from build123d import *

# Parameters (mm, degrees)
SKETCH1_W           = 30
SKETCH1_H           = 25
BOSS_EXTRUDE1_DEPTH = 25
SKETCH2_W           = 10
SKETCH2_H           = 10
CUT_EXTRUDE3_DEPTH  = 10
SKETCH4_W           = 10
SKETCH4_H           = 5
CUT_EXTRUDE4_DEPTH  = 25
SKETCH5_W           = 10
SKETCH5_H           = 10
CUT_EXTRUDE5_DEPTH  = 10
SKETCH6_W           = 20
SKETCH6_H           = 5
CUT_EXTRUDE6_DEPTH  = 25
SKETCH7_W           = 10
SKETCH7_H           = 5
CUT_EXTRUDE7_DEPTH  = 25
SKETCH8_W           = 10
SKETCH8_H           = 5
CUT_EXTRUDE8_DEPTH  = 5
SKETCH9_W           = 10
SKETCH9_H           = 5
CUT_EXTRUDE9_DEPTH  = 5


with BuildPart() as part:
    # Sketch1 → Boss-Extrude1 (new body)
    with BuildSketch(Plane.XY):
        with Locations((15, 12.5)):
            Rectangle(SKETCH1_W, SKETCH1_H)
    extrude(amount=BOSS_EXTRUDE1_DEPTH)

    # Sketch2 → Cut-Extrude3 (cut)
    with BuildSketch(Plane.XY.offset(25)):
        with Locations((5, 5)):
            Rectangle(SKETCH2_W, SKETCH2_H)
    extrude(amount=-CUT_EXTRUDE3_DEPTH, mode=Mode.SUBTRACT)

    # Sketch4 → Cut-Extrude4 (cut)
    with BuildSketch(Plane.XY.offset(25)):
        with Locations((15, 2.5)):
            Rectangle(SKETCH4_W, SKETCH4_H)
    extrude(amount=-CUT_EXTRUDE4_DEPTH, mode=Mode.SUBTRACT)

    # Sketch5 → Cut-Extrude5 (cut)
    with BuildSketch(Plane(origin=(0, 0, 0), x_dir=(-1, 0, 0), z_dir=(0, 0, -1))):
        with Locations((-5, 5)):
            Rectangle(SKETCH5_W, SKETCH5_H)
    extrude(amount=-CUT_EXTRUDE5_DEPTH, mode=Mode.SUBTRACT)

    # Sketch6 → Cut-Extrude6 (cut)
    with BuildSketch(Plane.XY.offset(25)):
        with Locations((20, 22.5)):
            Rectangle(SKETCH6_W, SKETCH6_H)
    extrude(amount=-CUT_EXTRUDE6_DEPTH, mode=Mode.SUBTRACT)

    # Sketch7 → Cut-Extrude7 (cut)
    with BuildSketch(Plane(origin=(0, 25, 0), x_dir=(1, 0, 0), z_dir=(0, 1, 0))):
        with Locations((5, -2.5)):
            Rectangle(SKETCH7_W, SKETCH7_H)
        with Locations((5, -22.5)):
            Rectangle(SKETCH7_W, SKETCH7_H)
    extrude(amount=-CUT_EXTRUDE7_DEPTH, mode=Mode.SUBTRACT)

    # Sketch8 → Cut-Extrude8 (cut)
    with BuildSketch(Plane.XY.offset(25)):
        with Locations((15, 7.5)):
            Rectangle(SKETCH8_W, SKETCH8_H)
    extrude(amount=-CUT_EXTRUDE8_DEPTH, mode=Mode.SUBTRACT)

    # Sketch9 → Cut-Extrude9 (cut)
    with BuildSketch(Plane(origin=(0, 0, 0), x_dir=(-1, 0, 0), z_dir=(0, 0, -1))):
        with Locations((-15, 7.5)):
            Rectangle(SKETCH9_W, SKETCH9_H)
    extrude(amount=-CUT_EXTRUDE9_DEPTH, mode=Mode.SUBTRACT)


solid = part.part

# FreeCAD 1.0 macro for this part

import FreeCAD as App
import Part
import Sketcher

V = App.Vector
Q = App.Units.Quantity

doc = App.newDocument("Part")
params = doc.addObject("Spreadsheet::Sheet", "Params")
for row, (alias, value) in enumerate([
    ("sketch1_width", "30 mm"),
    ("sketch1_height", "25 mm"),
    ("pad1_length", "25 mm"),
    ("sketch2_width", "10 mm"),
    ("pocket1_length", "10 mm"),
    ("sketch3_width", "10 mm"),
    ("sketch3_height", "5 mm"),
    ("pocket2_length", "25 mm"),
    ("sketch4_width", "10 mm"),
    ("pocket3_length", "10 mm"),
    ("sketch5_width", "20 mm"),
    ("sketch5_height", "5 mm"),
    ("pocket4_length", "25 mm"),
    ("sketch6_width", "10 mm"),
    ("sketch6_height", "5 mm"),
    ("pocket5_length", "25 mm"),
    ("sketch7_width", "10 mm"),
    ("sketch7_height", "5 mm"),
    ("pocket6_length", "5 mm"),
    ("sketch8_width", "10 mm"),
    ("sketch8_height", "5 mm"),
    ("pocket7_length", "5 mm"),
], start=1):
    params.set(f"A{row}", alias)
    params.set(f"B{row}", "=" + value)
    params.setAlias(f"B{row}", alias)

body = doc.addObject("PartDesign::Body", "Body")

sketch1 = doc.addObject("Sketcher::SketchObject", "Sketch")
body.addObject(sketch1)
sketch1.AttachmentSupport = (doc.XY_Plane, [""])
sketch1.MapMode = "FlatFace"
sketch1.addGeometry([
    Part.LineSegment(V(0, 25, 0), V(0, 0, 0)),
    Part.LineSegment(V(0, 0, 0), V(30, 0, 0)),
    Part.LineSegment(V(30, 0, 0), V(30, 25, 0)),
    Part.LineSegment(V(30, 25, 0), V(0, 25, 0)),
], False)
sketch1.addConstraint([
    Sketcher.Constraint("Coincident", 0, 2, 1, 1),
    Sketcher.Constraint("Coincident", 1, 2, 2, 1),
    Sketcher.Constraint("Coincident", 2, 2, 3, 1),
    Sketcher.Constraint("Coincident", 3, 2, 0, 1),
    Sketcher.Constraint("Vertical", 0),
    Sketcher.Constraint("Horizontal", 1),
    Sketcher.Constraint("Vertical", 2),
    Sketcher.Constraint("Horizontal", 3),
    Sketcher.Constraint("Coincident", 0, 2, -1, 1),
    Sketcher.Constraint("DistanceX", 1, 1, 1, 2, Q("30 mm")),
    Sketcher.Constraint("DistanceY", 0, 2, 0, 1, Q("25 mm")),
])
sketch1.setExpression("Constraints[9]", "Params.sketch1_width")
sketch1.setExpression("Constraints[10]", "Params.sketch1_height")
pad1 = doc.addObject("PartDesign::Pad", "Pad")
body.addObject(pad1)
pad1.Profile = sketch1
pad1.setExpression("Length", "Params.pad1_length")

sketch2 = doc.addObject("Sketcher::SketchObject", "Sketch001")
body.addObject(sketch2)
sketch2.AttachmentSupport = (doc.XY_Plane, [""])
sketch2.MapMode = "FlatFace"
sketch2.AttachmentOffset = App.Placement(V(0, 0, 25), App.Rotation())
sketch2.addGeometry([
    Part.LineSegment(V(0, 10, 0), V(0, 0, 0)),
    Part.LineSegment(V(0, 0, 0), V(10, 0, 0)),
    Part.LineSegment(V(10, 0, 0), V(10, 10, 0)),
    Part.LineSegment(V(10, 10, 0), V(0, 10, 0)),
], False)
sketch2.addConstraint([
    Sketcher.Constraint("Coincident", 0, 2, 1, 1),
    Sketcher.Constraint("Coincident", 1, 2, 2, 1),
    Sketcher.Constraint("Coincident", 2, 2, 3, 1),
    Sketcher.Constraint("Coincident", 3, 2, 0, 1),
    Sketcher.Constraint("Vertical", 0),
    Sketcher.Constraint("Horizontal", 1),
    Sketcher.Constraint("Vertical", 2),
    Sketcher.Constraint("Horizontal", 3),
    Sketcher.Constraint("Coincident", 0, 2, -1, 1),
    Sketcher.Constraint("Equal", 3, 0),
    Sketcher.Constraint("DistanceX", 1, 1, 1, 2, Q("10 mm")),
])
sketch2.setExpression("Constraints[10]", "Params.sketch2_width")
pocket1 = doc.addObject("PartDesign::Pocket", "Pocket")
body.addObject(pocket1)
pocket1.Profile = sketch2
pocket1.setExpression("Length", "Params.pocket1_length")

sketch3 = doc.addObject("Sketcher::SketchObject", "Sketch002")
body.addObject(sketch3)
sketch3.AttachmentSupport = (doc.XY_Plane, [""])
sketch3.MapMode = "FlatFace"
sketch3.AttachmentOffset = App.Placement(V(0, 0, 25), App.Rotation())
sketch3.addGeometry([
    Part.LineSegment(V(10, 5, 0), V(10, 0, 0)),
    Part.LineSegment(V(10, 0, 0), V(20, 0, 0)),
    Part.LineSegment(V(20, 0, 0), V(20, 5, 0)),
    Part.LineSegment(V(20, 5, 0), V(10, 5, 0)),
], False)
sketch3.addConstraint([
    Sketcher.Constraint("Coincident", 0, 2, 1, 1),
    Sketcher.Constraint("Coincident", 1, 2, 2, 1),
    Sketcher.Constraint("Coincident", 2, 2, 3, 1),
    Sketcher.Constraint("Coincident", 3, 2, 0, 1),
    Sketcher.Constraint("Vertical", 0),
    Sketcher.Constraint("Horizontal", 1),
    Sketcher.Constraint("Vertical", 2),
    Sketcher.Constraint("Horizontal", 3),
    Sketcher.Constraint("PointOnObject", 0, 2, -1),
    Sketcher.Constraint("DistanceX", 1, 1, 1, 2, Q("10 mm")),
    Sketcher.Constraint("DistanceY", 0, 2, 0, 1, Q("5 mm")),
    Sketcher.Constraint("DistanceX", -1, 1, 0, 2, Q("10 mm")),
])
sketch3.setExpression("Constraints[9]", "Params.sketch3_width")
sketch3.setExpression("Constraints[10]", "Params.sketch3_height")
pocket2 = doc.addObject("PartDesign::Pocket", "Pocket001")
body.addObject(pocket2)
pocket2.Profile = sketch3
pocket2.setExpression("Length", "Params.pocket2_length")

sketch4 = doc.addObject("Sketcher::SketchObject", "Sketch003")
body.addObject(sketch4)
sketch4.AttachmentSupport = (doc.XY_Plane, [""])
sketch4.MapMode = "FlatFace"
sketch4.addGeometry([
    Part.LineSegment(V(10, 10, 0), V(10, 0, 0)),
    Part.LineSegment(V(10, 0, 0), V(0, 0, 0)),
    Part.LineSegment(V(0, 0, 0), V(0, 10, 0)),
    Part.LineSegment(V(0, 10, 0), V(10, 10, 0)),
], False)
sketch4.addConstraint([
    Sketcher.Constraint("Coincident", 0, 2, 1, 1),
    Sketcher.Constraint("Coincident", 1, 2, 2, 1),
    Sketcher.Constraint("Coincident", 2, 2, 3, 1),
    Sketcher.Constraint("Coincident", 3, 2, 0, 1),
    Sketcher.Constraint("Vertical", 0),
    Sketcher.Constraint("Horizontal", 1),
    Sketcher.Constraint("Vertical", 2),
    Sketcher.Constraint("Horizontal", 3),
    Sketcher.Constraint("Coincident", 1, 2, -1, 1),
    Sketcher.Constraint("Equal", 3, 0),
    Sketcher.Constraint("DistanceX", 1, 2, 1, 1, Q("10 mm")),
])
sketch4.setExpression("Constraints[10]", "Params.sketch4_width")
pocket3 = doc.addObject("PartDesign::Pocket", "Pocket002")
body.addObject(pocket3)
pocket3.Profile = sketch4
pocket3.setExpression("Length", "Params.pocket3_length")
pocket3.Reversed = True

sketch5 = doc.addObject("Sketcher::SketchObject", "Sketch004")
body.addObject(sketch5)
sketch5.AttachmentSupport = (doc.XY_Plane, [""])
sketch5.MapMode = "FlatFace"
sketch5.AttachmentOffset = App.Placement(V(0, 0, 25), App.Rotation())
sketch5.addGeometry([
    Part.LineSegment(V(10, 25, 0), V(10, 20, 0)),
    Part.LineSegment(V(10, 20, 0), V(30, 20, 0)),
    Part.LineSegment(V(30, 20, 0), V(30, 25, 0)),
    Part.LineSegment(V(30, 25, 0), V(10, 25, 0)),
], False)
sketch5.addConstraint([
    Sketcher.Constraint("Coincident", 0, 2, 1, 1),
    Sketcher.Constraint("Coincident", 1, 2, 2, 1),
    Sketcher.Constraint("Coincident", 2, 2, 3, 1),
    Sketcher.Constraint("Coincident", 3, 2, 0, 1),
    Sketcher.Constraint("Vertical", 0),
    Sketcher.Constraint("Horizontal", 1),
    Sketcher.Constraint("Vertical", 2),
    Sketcher.Constraint("Horizontal", 3),
    Sketcher.Constraint("DistanceX", 1, 1, 1, 2, Q("20 mm")),
    Sketcher.Constraint("DistanceY", 0, 2, 0, 1, Q("5 mm")),
    Sketcher.Constraint("DistanceX", -1, 1, 0, 2, Q("10 mm")),
    Sketcher.Constraint("DistanceY", -1, 1, 0, 2, Q("20 mm")),
])
sketch5.setExpression("Constraints[8]", "Params.sketch5_width")
sketch5.setExpression("Constraints[9]", "Params.sketch5_height")
pocket4 = doc.addObject("PartDesign::Pocket", "Pocket003")
body.addObject(pocket4)
pocket4.Profile = sketch5
pocket4.setExpression("Length", "Params.pocket4_length")

sketch6 = doc.addObject("Sketcher::SketchObject", "Sketch005")
body.addObject(sketch6)
sketch6.AttachmentSupport = (doc.XZ_Plane, [""])
sketch6.MapMode = "FlatFace"
sketch6.AttachmentOffset = App.Placement(V(0, 0, -25), App.Rotation())
sketch6.addGeometry([
    Part.LineSegment(V(0, 0, 0), V(0, 5, 0)),
    Part.LineSegment(V(0, 5, 0), V(10, 5, 0)),
    Part.LineSegment(V(10, 5, 0), V(10, 0, 0)),
    Part.LineSegment(V(10, 0, 0), V(0, 0, 0)),
    Part.LineSegment(V(0, 20, 0), V(0, 25, 0)),
    Part.LineSegment(V(0, 25, 0), V(10, 25, 0)),
    Part.LineSegment(V(10, 25, 0), V(10, 20, 0)),
    Part.LineSegment(V(10, 20, 0), V(0, 20, 0)),
], False)
sketch6.addConstraint([
    Sketcher.Constraint("Coincident", 0, 2, 1, 1),
    Sketcher.Constraint("Coincident", 1, 2, 2, 1),
    Sketcher.Constraint("Coincident", 2, 2, 3, 1),
    Sketcher.Constraint("Coincident", 3, 2, 0, 1),
    Sketcher.Constraint("Coincident", 4, 2, 5, 1),
    Sketcher.Constraint("Coincident", 5, 2, 6, 1),
    Sketcher.Constraint("Coincident", 6, 2, 7, 1),
    Sketcher.Constraint("Coincident", 7, 2, 4, 1),
    Sketcher.Constraint("Vertical", 0),
    Sketcher.Constraint("Horizontal", 1),
    Sketcher.Constraint("Vertical", 2),
    Sketcher.Constraint("Horizontal", 3),
    Sketcher.Constraint("Vertical", 4),
    Sketcher.Constraint("Horizontal", 5),
    Sketcher.Constraint("Vertical", 6),
    Sketcher.Constraint("Horizontal", 7),
    Sketcher.Constraint("Coincident", 3, 2, -1, 1),
    Sketcher.Constraint("PointOnObject", 4, 2, -2),
    Sketcher.Constraint("Vertical", 2, 2, 5, 2),
    Sketcher.Constraint("Equal", 2, 4),
    Sketcher.Constraint("DistanceX", 1, 1, 1, 2, Q("10 mm")),
    Sketcher.Constraint("DistanceY", 0, 1, 0, 2, Q("5 mm")),
    Sketcher.Constraint("DistanceY", -1, 1, 4, 2, Q("25 mm")),
])
sketch6.setExpression("Constraints[20]", "Params.sketch6_width")
sketch6.setExpression("Constraints[21]", "Params.sketch6_height")
pocket5 = doc.addObject("PartDesign::Pocket", "Pocket004")
body.addObject(pocket5)
pocket5.Profile = sketch6
pocket5.setExpression("Length", "Params.pocket5_length")
pocket5.Reversed = True

sketch7 = doc.addObject("Sketcher::SketchObject", "Sketch006")
body.addObject(sketch7)
sketch7.AttachmentSupport = (doc.XY_Plane, [""])
sketch7.MapMode = "FlatFace"
sketch7.AttachmentOffset = App.Placement(V(0, 0, 25), App.Rotation())
sketch7.addGeometry([
    Part.LineSegment(V(10, 10, 0), V(10, 5, 0)),
    Part.LineSegment(V(10, 5, 0), V(20, 5, 0)),
    Part.LineSegment(V(20, 5, 0), V(20, 10, 0)),
    Part.LineSegment(V(20, 10, 0), V(10, 10, 0)),
], False)
sketch7.addConstraint([
    Sketcher.Constraint("Coincident", 0, 2, 1, 1),
    Sketcher.Constraint("Coincident", 1, 2, 2, 1),
    Sketcher.Constraint("Coincident", 2, 2, 3, 1),
    Sketcher.Constraint("Coincident", 3, 2, 0, 1),
    Sketcher.Constraint("Vertical", 0),
    Sketcher.Constraint("Horizontal", 1),
    Sketcher.Constraint("Vertical", 2),
    Sketcher.Constraint("Horizontal", 3),
    Sketcher.Constraint("DistanceX", 1, 1, 1, 2, Q("10 mm")),
    Sketcher.Constraint("DistanceY", 0, 2, 0, 1, Q("5 mm")),
    Sketcher.Constraint("DistanceX", -1, 1, 0, 2, Q("10 mm")),
    Sketcher.Constraint("DistanceY", -1, 1, 0, 2, Q("5 mm")),
])
sketch7.setExpression("Constraints[8]", "Params.sketch7_width")
sketch7.setExpression("Constraints[9]", "Params.sketch7_height")
pocket6 = doc.addObject("PartDesign::Pocket", "Pocket005")
body.addObject(pocket6)
pocket6.Profile = sketch7
pocket6.setExpression("Length", "Params.pocket6_length")

sketch8 = doc.addObject("Sketcher::SketchObject", "Sketch007")
body.addObject(sketch8)
sketch8.AttachmentSupport = (doc.XY_Plane, [""])
sketch8.MapMode = "FlatFace"
sketch8.addGeometry([
    Part.LineSegment(V(20, 10, 0), V(20, 5, 0)),
    Part.LineSegment(V(20, 5, 0), V(10, 5, 0)),
    Part.LineSegment(V(10, 5, 0), V(10, 10, 0)),
    Part.LineSegment(V(10, 10, 0), V(20, 10, 0)),
], False)
sketch8.addConstraint([
    Sketcher.Constraint("Coincident", 0, 2, 1, 1),
    Sketcher.Constraint("Coincident", 1, 2, 2, 1),
    Sketcher.Constraint("Coincident", 2, 2, 3, 1),
    Sketcher.Constraint("Coincident", 3, 2, 0, 1),
    Sketcher.Constraint("Vertical", 0),
    Sketcher.Constraint("Horizontal", 1),
    Sketcher.Constraint("Vertical", 2),
    Sketcher.Constraint("Horizontal", 3),
    Sketcher.Constraint("DistanceX", 1, 2, 1, 1, Q("10 mm")),
    Sketcher.Constraint("DistanceY", 0, 2, 0, 1, Q("5 mm")),
    Sketcher.Constraint("DistanceX", -1, 1, 0, 2, Q("20 mm")),
    Sketcher.Constraint("DistanceY", -1, 1, 0, 2, Q("5 mm")),
])
sketch8.setExpression("Constraints[8]", "Params.sketch8_width")
sketch8.setExpression("Constraints[9]", "Params.sketch8_height")
pocket7 = doc.addObject("PartDesign::Pocket", "Pocket006")
body.addObject(pocket7)
pocket7.Profile = sketch8
pocket7.setExpression("Length", "Params.pocket7_length")
pocket7.Reversed = True

doc.recompute()
